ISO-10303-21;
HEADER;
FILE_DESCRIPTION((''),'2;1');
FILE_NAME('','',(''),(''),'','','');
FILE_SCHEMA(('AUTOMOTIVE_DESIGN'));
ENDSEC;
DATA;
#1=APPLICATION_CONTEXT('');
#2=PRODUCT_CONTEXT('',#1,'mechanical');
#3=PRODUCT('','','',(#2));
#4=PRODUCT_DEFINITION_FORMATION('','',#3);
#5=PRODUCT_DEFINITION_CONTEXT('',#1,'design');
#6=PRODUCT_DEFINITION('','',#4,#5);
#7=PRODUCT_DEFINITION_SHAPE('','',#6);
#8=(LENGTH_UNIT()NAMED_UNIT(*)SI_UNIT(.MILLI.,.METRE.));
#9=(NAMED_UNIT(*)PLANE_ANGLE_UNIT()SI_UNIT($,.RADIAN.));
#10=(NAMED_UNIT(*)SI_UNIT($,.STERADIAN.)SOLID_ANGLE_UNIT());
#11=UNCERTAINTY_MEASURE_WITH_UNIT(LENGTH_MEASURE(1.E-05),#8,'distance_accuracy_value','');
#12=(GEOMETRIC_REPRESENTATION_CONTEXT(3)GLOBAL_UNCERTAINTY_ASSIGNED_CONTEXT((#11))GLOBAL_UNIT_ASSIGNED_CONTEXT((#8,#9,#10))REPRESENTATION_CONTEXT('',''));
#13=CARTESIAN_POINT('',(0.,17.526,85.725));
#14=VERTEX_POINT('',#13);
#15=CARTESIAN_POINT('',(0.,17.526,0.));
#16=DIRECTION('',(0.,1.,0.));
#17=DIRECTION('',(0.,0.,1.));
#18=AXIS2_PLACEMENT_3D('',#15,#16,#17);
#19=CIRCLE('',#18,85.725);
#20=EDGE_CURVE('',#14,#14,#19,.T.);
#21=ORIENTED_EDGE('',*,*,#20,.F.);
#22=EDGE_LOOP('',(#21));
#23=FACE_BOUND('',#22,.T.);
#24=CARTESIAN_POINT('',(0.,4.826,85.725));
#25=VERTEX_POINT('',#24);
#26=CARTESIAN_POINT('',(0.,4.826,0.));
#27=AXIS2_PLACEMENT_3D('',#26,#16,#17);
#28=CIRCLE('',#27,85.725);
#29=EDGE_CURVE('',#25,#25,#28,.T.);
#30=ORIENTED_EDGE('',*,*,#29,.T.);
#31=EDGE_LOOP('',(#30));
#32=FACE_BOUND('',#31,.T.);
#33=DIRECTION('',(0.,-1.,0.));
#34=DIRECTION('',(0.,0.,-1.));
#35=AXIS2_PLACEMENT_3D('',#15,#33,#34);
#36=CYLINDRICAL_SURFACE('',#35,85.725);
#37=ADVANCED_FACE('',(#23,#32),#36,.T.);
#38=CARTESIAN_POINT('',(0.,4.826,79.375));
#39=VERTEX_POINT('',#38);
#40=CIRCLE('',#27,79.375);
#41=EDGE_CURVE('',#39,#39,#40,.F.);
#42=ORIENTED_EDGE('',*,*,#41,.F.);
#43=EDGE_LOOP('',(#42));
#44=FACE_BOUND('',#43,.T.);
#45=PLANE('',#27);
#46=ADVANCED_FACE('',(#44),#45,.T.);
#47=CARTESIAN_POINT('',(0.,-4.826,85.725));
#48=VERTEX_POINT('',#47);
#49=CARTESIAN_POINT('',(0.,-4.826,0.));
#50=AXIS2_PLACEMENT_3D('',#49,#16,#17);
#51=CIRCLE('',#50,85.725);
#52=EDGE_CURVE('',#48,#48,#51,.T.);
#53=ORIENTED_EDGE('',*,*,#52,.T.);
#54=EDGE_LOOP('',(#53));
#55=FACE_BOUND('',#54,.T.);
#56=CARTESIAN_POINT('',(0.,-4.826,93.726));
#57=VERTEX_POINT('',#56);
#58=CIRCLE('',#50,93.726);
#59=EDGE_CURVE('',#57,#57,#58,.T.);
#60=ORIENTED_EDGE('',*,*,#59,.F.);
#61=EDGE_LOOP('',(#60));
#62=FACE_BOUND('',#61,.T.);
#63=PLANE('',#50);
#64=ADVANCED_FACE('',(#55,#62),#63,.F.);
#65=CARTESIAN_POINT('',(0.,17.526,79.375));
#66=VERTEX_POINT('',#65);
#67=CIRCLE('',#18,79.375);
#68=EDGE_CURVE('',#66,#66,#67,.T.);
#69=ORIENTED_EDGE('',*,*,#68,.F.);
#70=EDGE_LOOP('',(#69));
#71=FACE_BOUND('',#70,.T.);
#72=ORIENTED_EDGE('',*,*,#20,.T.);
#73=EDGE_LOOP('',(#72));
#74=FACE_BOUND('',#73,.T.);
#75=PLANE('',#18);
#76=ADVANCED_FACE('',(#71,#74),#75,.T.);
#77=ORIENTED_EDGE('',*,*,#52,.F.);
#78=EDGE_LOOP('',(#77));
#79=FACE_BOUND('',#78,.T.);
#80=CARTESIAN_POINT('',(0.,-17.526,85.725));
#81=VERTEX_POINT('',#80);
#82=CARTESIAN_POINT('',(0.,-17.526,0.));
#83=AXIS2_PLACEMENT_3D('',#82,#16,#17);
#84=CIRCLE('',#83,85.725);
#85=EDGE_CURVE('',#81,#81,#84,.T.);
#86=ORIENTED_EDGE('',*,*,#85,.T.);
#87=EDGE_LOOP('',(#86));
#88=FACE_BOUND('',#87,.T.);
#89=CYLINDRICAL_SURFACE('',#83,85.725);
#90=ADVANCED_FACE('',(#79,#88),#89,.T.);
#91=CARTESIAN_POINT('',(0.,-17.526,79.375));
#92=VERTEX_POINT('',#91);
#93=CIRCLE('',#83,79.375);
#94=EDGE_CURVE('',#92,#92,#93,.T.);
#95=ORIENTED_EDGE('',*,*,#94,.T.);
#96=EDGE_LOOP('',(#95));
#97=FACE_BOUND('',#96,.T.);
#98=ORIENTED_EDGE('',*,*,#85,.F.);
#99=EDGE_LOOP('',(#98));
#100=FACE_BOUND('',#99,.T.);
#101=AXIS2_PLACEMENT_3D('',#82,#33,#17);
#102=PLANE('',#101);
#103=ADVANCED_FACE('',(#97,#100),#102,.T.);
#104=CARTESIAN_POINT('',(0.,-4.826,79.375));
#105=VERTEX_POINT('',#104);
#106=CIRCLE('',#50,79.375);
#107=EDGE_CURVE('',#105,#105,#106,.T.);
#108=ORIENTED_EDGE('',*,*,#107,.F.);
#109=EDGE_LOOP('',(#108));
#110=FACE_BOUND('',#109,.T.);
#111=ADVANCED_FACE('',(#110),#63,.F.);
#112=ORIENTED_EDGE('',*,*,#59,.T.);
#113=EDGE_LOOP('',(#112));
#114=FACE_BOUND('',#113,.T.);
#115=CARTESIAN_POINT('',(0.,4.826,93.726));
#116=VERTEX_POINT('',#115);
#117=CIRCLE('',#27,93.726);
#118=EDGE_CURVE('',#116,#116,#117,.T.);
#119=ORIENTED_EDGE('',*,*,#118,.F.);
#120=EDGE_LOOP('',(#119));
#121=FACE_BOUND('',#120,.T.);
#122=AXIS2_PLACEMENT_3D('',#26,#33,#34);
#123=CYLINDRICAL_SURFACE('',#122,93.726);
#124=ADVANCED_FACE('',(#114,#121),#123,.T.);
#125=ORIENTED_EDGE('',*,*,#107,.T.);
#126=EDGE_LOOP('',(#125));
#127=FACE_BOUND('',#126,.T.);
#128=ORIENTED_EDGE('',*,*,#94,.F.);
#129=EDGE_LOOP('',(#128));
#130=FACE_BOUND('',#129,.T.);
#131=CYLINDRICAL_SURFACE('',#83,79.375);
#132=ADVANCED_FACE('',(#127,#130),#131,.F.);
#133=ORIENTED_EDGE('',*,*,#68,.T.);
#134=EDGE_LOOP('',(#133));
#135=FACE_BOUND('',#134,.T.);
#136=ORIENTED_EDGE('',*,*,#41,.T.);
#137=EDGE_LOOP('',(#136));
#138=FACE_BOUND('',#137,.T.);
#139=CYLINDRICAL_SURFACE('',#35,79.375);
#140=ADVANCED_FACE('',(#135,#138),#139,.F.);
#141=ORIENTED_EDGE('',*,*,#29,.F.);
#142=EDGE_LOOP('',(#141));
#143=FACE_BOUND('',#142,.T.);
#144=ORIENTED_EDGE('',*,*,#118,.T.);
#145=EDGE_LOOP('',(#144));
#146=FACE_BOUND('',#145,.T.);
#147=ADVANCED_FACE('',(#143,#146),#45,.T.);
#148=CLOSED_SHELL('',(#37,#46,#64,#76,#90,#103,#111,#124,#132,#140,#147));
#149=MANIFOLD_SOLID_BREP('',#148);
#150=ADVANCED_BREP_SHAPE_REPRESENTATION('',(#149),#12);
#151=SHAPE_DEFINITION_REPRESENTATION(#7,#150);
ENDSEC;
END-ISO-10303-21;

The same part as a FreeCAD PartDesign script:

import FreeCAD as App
import Part
import Sketcher
from FreeCAD import Vector
Q = App.Units.Quantity

doc = App.newDocument("Part")
body = doc.addObject("PartDesign::Body", "Body")

# Sketch on XZ plane
sketch1 = body.newObject("Sketcher::SketchObject", "Sketch")
sketch1.AttachmentSupport = (doc.getObject("XZ_Plane"), [""])
sketch1.MapMode = "FlatFace"
sketch1.addGeometry(Part.Circle(Vector(0, 0, 0), Vector(0, 0, 1), 94), False)
sketch1.addConstraint([
    Sketcher.Constraint("Coincident", 0, 3, -1, 1),
    Sketcher.Constraint("Diameter", 0, Q("7.38 in")),
])
pad1 = body.newObject("PartDesign::Pad", "Pad")
pad1.Profile = sketch1
pad1.Length = Q("0.38 in")
pad1.Midplane = True

# Sketch on XZ plane
sketch2 = body.newObject("Sketcher::SketchObject", "Sketch001")
sketch2.AttachmentSupport = (doc.getObject("XZ_Plane"), [""])
sketch2.MapMode = "FlatFace"
sketch2.AttachmentOffset = App.Placement(Vector(0, 0, -0.19 * 25.4), App.Rotation())
sketch2.addGeometry([
    Part.Circle(Vector(0, 0, 0), Vector(0, 0, 1), 86),
    Part.Circle(Vector(0, 0, 0), Vector(0, 0, 1), 79),
], False)
sketch2.addConstraint([
    Sketcher.Constraint("Coincident", 0, 3, -1, 1),
    Sketcher.Constraint("Coincident", 1, 3, -1, 1),
    Sketcher.Constraint("Diameter", 0, Q("6.75 in")),
    Sketcher.Constraint("Diameter", 1, Q("6.25 in")),
])
pad2 = body.newObject("PartDesign::Pad", "Pad001")
pad2.Profile = sketch2
pad2.Length = Q("0.5 in")
pad2.Reversed = True
doc.recompute()

mirrored = body.newObject("PartDesign::Mirrored", "Mirrored")
mirrored.Originals = [pad2]
mirrored.MirrorPlane = (doc.getObject("XZ_Plane"), [""])
body.Tip = mirrored

doc.recompute()
